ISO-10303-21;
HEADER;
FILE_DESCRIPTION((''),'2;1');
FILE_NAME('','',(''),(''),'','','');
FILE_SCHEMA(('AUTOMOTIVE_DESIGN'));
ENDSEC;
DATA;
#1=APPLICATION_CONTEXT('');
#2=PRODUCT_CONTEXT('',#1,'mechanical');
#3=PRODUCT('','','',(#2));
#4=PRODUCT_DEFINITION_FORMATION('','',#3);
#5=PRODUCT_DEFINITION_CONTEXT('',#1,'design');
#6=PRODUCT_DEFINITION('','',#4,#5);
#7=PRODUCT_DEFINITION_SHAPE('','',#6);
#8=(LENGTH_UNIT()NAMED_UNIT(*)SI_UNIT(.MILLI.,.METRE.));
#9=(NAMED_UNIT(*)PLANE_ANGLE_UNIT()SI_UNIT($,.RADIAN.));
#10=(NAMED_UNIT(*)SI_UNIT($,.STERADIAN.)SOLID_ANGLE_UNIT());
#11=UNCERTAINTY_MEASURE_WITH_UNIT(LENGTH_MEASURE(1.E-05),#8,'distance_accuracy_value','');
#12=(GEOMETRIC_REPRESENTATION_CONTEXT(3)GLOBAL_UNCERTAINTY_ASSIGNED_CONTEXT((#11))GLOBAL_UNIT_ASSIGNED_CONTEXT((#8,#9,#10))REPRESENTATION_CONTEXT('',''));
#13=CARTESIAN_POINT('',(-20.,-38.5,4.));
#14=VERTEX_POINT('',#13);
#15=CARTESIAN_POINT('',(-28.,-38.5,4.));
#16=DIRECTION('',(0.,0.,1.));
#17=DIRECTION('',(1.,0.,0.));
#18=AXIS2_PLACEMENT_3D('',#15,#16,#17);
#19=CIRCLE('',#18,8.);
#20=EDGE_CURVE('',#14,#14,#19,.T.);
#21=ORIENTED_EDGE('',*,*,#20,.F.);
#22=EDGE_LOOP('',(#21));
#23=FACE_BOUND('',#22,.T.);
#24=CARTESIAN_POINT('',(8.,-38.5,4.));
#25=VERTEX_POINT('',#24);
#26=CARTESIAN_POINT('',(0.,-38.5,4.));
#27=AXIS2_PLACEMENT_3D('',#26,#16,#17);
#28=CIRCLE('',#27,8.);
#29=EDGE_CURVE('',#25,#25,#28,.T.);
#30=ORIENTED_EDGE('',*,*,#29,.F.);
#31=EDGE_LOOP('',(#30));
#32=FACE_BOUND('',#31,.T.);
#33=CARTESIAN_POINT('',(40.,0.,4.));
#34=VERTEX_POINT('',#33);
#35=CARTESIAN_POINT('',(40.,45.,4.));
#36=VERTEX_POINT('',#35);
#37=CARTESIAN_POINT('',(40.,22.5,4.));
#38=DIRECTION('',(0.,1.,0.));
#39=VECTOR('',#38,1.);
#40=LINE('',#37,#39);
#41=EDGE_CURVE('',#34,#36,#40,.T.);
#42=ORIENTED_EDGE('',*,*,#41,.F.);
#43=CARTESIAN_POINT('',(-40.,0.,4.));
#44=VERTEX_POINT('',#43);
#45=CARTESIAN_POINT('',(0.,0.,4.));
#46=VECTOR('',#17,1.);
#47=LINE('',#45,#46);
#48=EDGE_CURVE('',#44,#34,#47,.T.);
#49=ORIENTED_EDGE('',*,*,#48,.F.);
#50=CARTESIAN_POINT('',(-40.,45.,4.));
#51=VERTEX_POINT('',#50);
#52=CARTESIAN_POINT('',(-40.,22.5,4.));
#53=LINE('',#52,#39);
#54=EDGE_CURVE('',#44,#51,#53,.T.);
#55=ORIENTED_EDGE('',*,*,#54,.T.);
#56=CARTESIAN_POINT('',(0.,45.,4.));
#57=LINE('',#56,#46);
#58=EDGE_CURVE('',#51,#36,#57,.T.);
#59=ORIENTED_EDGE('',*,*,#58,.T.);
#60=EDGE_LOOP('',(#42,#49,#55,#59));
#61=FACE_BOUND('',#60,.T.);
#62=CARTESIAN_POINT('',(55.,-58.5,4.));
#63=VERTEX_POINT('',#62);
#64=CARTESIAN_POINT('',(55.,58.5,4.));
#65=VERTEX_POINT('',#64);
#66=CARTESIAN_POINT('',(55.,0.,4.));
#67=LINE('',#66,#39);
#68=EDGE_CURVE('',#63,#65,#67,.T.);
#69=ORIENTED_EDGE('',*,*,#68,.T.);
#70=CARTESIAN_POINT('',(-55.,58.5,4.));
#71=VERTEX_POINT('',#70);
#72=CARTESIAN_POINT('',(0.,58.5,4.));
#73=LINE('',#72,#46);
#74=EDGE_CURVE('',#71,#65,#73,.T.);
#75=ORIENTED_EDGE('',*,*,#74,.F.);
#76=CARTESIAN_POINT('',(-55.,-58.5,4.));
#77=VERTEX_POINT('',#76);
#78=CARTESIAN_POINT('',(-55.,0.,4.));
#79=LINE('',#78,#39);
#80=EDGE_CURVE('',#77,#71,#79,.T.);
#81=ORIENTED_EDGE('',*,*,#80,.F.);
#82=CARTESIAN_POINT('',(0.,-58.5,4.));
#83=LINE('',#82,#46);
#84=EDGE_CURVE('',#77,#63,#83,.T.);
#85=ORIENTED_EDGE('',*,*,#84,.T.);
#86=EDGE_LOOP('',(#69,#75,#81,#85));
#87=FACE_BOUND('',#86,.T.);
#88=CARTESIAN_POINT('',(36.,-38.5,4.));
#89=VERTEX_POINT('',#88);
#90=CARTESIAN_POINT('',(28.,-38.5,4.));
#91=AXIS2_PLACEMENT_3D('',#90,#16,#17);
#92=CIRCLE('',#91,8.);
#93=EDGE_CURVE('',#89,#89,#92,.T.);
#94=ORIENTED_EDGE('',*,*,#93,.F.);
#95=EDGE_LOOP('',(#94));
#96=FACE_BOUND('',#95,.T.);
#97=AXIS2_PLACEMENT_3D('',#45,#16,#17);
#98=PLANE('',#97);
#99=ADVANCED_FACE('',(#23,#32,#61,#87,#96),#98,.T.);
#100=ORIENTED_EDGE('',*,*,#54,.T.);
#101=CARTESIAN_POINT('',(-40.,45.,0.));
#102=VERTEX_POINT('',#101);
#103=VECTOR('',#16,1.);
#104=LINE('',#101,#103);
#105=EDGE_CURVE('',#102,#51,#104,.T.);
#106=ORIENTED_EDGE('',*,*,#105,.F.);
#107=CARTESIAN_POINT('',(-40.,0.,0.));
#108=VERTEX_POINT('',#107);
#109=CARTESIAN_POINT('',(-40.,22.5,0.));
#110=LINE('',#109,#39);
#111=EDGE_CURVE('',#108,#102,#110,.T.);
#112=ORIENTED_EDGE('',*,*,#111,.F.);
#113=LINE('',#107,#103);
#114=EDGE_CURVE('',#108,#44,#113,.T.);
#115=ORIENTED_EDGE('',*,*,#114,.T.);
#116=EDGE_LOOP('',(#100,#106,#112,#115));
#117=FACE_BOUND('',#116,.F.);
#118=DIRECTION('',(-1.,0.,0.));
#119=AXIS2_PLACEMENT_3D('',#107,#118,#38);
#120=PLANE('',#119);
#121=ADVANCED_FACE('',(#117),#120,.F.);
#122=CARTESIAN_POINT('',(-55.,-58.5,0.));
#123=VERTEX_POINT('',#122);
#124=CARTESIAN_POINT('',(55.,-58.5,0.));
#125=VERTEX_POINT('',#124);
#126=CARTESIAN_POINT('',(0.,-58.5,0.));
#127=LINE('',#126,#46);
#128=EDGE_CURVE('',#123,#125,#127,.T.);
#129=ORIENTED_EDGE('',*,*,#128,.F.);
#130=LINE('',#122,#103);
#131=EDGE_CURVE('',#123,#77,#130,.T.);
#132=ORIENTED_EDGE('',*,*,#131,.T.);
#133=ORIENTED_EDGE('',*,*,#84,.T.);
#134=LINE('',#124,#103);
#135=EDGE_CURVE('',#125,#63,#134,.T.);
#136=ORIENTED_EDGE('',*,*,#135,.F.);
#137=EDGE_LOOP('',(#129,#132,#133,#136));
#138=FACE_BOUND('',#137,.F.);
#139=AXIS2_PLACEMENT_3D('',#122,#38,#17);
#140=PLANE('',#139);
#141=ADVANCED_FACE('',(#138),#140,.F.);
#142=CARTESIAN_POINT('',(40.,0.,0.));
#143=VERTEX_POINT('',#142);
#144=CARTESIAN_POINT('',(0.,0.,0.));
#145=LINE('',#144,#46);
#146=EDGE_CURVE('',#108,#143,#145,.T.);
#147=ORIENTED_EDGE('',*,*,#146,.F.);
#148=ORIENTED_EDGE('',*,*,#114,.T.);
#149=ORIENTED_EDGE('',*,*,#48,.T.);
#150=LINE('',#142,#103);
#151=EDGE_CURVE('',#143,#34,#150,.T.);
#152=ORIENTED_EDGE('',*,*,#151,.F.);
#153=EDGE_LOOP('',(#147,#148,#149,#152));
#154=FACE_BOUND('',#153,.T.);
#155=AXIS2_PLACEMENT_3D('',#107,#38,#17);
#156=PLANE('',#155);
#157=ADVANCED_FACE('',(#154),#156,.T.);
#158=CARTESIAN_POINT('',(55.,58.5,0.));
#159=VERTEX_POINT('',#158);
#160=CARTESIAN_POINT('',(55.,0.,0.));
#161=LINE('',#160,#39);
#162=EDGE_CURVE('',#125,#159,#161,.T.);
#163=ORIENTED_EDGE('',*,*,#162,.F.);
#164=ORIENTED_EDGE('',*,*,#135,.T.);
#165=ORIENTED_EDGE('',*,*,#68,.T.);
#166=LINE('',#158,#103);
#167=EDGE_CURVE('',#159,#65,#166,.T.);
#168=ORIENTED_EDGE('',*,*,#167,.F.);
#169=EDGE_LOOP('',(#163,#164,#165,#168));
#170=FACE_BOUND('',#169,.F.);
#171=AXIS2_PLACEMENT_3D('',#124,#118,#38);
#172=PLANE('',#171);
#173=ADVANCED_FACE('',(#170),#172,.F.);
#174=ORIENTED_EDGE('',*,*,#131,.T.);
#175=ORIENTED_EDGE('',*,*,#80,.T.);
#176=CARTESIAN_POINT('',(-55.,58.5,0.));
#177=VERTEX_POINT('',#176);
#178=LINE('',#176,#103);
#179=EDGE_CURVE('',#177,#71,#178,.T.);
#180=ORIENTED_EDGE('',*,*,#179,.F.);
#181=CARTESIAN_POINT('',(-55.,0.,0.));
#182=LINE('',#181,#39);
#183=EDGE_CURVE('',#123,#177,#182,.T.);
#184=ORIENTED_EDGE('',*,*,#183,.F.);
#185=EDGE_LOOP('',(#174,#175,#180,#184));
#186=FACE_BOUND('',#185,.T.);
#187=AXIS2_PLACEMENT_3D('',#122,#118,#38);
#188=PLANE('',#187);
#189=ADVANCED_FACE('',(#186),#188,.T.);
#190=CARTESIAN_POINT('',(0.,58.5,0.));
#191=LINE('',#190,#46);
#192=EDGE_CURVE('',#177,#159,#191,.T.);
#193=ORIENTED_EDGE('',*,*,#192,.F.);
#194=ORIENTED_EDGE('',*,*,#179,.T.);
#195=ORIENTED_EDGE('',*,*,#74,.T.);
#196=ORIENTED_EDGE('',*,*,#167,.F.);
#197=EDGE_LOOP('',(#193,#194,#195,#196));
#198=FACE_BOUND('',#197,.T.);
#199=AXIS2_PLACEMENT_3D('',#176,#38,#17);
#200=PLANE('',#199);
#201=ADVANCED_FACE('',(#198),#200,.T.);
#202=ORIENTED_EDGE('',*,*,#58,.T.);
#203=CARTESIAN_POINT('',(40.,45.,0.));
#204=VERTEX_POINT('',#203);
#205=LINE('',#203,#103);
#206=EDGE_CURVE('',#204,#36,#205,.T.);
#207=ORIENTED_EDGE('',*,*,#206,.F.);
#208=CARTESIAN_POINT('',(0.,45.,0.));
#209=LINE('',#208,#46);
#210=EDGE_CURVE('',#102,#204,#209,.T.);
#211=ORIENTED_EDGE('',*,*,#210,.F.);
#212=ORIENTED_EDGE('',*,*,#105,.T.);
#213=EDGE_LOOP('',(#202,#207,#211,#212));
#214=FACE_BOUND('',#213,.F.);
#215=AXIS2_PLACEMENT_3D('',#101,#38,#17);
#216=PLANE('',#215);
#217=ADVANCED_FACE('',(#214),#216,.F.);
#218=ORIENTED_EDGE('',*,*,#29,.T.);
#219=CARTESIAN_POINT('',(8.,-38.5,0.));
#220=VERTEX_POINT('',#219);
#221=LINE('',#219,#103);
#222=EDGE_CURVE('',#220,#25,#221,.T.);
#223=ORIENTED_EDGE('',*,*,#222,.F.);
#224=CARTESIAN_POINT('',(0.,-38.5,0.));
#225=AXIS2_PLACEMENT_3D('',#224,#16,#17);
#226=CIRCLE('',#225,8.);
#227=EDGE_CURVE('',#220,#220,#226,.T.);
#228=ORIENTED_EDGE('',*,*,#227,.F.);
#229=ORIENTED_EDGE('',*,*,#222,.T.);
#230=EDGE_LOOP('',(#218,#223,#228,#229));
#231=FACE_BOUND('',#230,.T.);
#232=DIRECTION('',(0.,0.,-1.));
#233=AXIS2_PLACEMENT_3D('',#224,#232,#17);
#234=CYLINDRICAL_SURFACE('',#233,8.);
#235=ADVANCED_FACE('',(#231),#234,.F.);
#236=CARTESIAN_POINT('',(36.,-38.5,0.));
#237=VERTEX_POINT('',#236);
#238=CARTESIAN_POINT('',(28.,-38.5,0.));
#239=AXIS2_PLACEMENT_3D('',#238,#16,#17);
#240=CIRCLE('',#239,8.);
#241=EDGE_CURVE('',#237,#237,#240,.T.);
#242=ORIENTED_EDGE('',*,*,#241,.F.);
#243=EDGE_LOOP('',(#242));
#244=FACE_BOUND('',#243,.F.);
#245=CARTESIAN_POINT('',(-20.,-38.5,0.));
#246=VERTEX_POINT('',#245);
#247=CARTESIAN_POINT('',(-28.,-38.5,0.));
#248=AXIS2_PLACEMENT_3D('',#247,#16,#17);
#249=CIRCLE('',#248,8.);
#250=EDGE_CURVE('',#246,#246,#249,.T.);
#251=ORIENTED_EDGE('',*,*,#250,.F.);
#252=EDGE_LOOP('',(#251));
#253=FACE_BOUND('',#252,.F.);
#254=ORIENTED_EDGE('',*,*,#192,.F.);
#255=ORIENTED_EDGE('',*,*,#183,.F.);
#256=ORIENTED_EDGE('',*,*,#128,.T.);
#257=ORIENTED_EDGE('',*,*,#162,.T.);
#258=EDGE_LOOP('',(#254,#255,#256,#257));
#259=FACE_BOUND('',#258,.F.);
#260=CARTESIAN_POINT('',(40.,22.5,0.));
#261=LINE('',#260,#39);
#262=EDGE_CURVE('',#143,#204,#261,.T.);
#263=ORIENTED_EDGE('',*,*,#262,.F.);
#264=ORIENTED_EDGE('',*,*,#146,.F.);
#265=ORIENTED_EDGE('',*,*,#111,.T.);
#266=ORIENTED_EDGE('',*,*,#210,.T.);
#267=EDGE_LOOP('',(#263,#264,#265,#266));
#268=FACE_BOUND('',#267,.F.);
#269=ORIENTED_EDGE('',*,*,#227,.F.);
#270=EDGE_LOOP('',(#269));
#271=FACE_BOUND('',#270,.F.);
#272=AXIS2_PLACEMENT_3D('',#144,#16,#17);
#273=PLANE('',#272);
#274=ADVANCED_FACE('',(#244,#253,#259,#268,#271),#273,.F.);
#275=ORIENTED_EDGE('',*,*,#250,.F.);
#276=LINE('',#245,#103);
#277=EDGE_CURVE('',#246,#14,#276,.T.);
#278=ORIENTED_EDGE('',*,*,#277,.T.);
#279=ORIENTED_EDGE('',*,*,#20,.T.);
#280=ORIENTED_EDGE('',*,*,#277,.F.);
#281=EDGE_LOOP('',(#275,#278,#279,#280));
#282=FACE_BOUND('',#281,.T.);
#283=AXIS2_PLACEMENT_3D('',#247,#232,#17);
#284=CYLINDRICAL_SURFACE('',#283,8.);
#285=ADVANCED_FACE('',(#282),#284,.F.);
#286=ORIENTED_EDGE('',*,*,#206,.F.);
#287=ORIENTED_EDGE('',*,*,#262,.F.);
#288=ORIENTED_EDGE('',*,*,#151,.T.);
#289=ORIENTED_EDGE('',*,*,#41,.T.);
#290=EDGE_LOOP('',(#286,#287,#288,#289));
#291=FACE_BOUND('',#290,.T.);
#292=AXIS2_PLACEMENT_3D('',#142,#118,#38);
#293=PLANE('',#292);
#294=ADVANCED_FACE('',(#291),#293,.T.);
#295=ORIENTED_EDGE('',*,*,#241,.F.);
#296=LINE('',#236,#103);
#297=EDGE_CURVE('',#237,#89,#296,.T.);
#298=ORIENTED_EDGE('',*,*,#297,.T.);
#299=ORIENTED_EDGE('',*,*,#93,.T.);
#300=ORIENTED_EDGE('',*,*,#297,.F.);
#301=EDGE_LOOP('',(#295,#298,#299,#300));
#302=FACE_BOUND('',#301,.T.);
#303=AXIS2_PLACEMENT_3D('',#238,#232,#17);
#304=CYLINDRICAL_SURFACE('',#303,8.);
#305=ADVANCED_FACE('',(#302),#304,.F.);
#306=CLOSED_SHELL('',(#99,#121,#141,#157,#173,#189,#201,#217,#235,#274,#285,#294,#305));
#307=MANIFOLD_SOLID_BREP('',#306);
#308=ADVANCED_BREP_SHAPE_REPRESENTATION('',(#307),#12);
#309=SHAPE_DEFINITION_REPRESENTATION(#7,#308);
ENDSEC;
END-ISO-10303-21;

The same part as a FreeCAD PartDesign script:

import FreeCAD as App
import Part
import Sketcher

doc = App.newDocument("Part")
body = doc.addObject("PartDesign::Body", "Body")

sketch1 = body.newObject("Sketcher::SketchObject", "Sketch")
sketch1.AttachmentSupport = (doc.getObject("XY_Plane"), [""])
sketch1.MapMode = "FlatFace"
sketch1.addGeometry(Part.LineSegment(App.Vector(-55, 58, 0), App.Vector(-55, -58, 0)), False)
sketch1.addGeometry(Part.LineSegment(App.Vector(-55, -58, 0), App.Vector(55, -58, 0)), False)
sketch1.addGeometry(Part.LineSegment(App.Vector(55, -58, 0), App.Vector(55, 58, 0)), False)
sketch1.addGeometry(Part.LineSegment(App.Vector(55, 58, 0), App.Vector(-55, 58, 0)), False)
sketch1.addGeometry(Part.Circle(App.Vector(-28, -38, 0), App.Vector(0, 0, 1), 8), False)
sketch1.addGeometry(Part.Circle(App.Vector(0, -38, 0), App.Vector(0, 0, 1), 8), False)
sketch1.addGeometry(Part.Circle(App.Vector(28, -38, 0), App.Vector(0, 0, 1), 8), False)
sketch1.addGeometry(Part.LineSegment(App.Vector(40, 0, 0), App.Vector(-40, 0, 0)), False)
sketch1.addGeometry(Part.LineSegment(App.Vector(-40, 0, 0), App.Vector(-40, 45, 0)), False)
sketch1.addGeometry(Part.LineSegment(App.Vector(-40, 45, 0), App.Vector(40, 45, 0)), False)
sketch1.addGeometry(Part.LineSegment(App.Vector(40, 45, 0), App.Vector(40, 0, 0)), False)
sketch1.addConstraint(Sketcher.Constraint("Coincident", 0, 2, 1, 1))
sketch1.addConstraint(Sketcher.Constraint("Coincident", 1, 2, 2, 1))
sketch1.addConstraint(Sketcher.Constraint("Coincident", 2, 2, 3, 1))
sketch1.addConstraint(Sketcher.Constraint("Coincident", 3, 2, 0, 1))
sketch1.addConstraint(Sketcher.Constraint("Coincident", 7, 2, 8, 1))
sketch1.addConstraint(Sketcher.Constraint("Coincident", 8, 2, 9, 1))
sketch1.addConstraint(Sketcher.Constraint("Coincident", 9, 2, 10, 1))
sketch1.addConstraint(Sketcher.Constraint("Coincident", 10, 2, 7, 1))
sketch1.addConstraint(Sketcher.Constraint("Vertical", 0))
sketch1.addConstraint(Sketcher.Constraint("Horizontal", 1))
sketch1.addConstraint(Sketcher.Constraint("Vertical", 2))
sketch1.addConstraint(Sketcher.Constraint("Horizontal", 3))
sketch1.addConstraint(Sketcher.Constraint("Horizontal", 7))
sketch1.addConstraint(Sketcher.Constraint("Vertical", 8))
sketch1.addConstraint(Sketcher.Constraint("Horizontal", 9))
sketch1.addConstraint(Sketcher.Constraint("Vertical", 10))
sketch1.addConstraint(Sketcher.Constraint("Equal", 4, 5))
sketch1.addConstraint(Sketcher.Constraint("Equal", 5, 6))
sketch1.addConstraint(Sketcher.Constraint("Symmetric", 0, 2, 2, 2, -1, 1))
sketch1.addConstraint(Sketcher.Constraint("Symmetric", 7, 2, 10, 2, -1, 1))
sketch1.addConstraint(Sketcher.Constraint("Symmetric", 4, 3, 6, 3, -2))
sketch1.addConstraint(Sketcher.Constraint("PointOnObject", 5, 3, -2))
sketch1.addConstraint(Sketcher.Constraint("Horizontal", 4, 3, 5, 3))
sketch1.addConstraint(Sketcher.Constraint("Diameter", 4, 16.0))
sketch1.addConstraint(Sketcher.Constraint("DistanceX", 1, 1, 1, 2, 110.0))
sketch1.addConstraint(Sketcher.Constraint("DistanceX", 7, 2, 7, 1, 80.0))
sketch1.addConstraint(Sketcher.Constraint("DistanceY", 0, 2, 0, 1, 117.0))
sketch1.addConstraint(Sketcher.Constraint("DistanceY", 8, 1, 8, 2, 45.0))
sketch1.addConstraint(Sketcher.Constraint("DistanceX", 4, 3, -1, 1, 28.0))
sketch1.addConstraint(Sketcher.Constraint("DistanceY", 0, 2, 4, 3, 20.0))
pad1 = body.newObject("PartDesign::Pad", "Pad")
pad1.Profile = sketch1
pad1.Length = 4

doc.recompute()
